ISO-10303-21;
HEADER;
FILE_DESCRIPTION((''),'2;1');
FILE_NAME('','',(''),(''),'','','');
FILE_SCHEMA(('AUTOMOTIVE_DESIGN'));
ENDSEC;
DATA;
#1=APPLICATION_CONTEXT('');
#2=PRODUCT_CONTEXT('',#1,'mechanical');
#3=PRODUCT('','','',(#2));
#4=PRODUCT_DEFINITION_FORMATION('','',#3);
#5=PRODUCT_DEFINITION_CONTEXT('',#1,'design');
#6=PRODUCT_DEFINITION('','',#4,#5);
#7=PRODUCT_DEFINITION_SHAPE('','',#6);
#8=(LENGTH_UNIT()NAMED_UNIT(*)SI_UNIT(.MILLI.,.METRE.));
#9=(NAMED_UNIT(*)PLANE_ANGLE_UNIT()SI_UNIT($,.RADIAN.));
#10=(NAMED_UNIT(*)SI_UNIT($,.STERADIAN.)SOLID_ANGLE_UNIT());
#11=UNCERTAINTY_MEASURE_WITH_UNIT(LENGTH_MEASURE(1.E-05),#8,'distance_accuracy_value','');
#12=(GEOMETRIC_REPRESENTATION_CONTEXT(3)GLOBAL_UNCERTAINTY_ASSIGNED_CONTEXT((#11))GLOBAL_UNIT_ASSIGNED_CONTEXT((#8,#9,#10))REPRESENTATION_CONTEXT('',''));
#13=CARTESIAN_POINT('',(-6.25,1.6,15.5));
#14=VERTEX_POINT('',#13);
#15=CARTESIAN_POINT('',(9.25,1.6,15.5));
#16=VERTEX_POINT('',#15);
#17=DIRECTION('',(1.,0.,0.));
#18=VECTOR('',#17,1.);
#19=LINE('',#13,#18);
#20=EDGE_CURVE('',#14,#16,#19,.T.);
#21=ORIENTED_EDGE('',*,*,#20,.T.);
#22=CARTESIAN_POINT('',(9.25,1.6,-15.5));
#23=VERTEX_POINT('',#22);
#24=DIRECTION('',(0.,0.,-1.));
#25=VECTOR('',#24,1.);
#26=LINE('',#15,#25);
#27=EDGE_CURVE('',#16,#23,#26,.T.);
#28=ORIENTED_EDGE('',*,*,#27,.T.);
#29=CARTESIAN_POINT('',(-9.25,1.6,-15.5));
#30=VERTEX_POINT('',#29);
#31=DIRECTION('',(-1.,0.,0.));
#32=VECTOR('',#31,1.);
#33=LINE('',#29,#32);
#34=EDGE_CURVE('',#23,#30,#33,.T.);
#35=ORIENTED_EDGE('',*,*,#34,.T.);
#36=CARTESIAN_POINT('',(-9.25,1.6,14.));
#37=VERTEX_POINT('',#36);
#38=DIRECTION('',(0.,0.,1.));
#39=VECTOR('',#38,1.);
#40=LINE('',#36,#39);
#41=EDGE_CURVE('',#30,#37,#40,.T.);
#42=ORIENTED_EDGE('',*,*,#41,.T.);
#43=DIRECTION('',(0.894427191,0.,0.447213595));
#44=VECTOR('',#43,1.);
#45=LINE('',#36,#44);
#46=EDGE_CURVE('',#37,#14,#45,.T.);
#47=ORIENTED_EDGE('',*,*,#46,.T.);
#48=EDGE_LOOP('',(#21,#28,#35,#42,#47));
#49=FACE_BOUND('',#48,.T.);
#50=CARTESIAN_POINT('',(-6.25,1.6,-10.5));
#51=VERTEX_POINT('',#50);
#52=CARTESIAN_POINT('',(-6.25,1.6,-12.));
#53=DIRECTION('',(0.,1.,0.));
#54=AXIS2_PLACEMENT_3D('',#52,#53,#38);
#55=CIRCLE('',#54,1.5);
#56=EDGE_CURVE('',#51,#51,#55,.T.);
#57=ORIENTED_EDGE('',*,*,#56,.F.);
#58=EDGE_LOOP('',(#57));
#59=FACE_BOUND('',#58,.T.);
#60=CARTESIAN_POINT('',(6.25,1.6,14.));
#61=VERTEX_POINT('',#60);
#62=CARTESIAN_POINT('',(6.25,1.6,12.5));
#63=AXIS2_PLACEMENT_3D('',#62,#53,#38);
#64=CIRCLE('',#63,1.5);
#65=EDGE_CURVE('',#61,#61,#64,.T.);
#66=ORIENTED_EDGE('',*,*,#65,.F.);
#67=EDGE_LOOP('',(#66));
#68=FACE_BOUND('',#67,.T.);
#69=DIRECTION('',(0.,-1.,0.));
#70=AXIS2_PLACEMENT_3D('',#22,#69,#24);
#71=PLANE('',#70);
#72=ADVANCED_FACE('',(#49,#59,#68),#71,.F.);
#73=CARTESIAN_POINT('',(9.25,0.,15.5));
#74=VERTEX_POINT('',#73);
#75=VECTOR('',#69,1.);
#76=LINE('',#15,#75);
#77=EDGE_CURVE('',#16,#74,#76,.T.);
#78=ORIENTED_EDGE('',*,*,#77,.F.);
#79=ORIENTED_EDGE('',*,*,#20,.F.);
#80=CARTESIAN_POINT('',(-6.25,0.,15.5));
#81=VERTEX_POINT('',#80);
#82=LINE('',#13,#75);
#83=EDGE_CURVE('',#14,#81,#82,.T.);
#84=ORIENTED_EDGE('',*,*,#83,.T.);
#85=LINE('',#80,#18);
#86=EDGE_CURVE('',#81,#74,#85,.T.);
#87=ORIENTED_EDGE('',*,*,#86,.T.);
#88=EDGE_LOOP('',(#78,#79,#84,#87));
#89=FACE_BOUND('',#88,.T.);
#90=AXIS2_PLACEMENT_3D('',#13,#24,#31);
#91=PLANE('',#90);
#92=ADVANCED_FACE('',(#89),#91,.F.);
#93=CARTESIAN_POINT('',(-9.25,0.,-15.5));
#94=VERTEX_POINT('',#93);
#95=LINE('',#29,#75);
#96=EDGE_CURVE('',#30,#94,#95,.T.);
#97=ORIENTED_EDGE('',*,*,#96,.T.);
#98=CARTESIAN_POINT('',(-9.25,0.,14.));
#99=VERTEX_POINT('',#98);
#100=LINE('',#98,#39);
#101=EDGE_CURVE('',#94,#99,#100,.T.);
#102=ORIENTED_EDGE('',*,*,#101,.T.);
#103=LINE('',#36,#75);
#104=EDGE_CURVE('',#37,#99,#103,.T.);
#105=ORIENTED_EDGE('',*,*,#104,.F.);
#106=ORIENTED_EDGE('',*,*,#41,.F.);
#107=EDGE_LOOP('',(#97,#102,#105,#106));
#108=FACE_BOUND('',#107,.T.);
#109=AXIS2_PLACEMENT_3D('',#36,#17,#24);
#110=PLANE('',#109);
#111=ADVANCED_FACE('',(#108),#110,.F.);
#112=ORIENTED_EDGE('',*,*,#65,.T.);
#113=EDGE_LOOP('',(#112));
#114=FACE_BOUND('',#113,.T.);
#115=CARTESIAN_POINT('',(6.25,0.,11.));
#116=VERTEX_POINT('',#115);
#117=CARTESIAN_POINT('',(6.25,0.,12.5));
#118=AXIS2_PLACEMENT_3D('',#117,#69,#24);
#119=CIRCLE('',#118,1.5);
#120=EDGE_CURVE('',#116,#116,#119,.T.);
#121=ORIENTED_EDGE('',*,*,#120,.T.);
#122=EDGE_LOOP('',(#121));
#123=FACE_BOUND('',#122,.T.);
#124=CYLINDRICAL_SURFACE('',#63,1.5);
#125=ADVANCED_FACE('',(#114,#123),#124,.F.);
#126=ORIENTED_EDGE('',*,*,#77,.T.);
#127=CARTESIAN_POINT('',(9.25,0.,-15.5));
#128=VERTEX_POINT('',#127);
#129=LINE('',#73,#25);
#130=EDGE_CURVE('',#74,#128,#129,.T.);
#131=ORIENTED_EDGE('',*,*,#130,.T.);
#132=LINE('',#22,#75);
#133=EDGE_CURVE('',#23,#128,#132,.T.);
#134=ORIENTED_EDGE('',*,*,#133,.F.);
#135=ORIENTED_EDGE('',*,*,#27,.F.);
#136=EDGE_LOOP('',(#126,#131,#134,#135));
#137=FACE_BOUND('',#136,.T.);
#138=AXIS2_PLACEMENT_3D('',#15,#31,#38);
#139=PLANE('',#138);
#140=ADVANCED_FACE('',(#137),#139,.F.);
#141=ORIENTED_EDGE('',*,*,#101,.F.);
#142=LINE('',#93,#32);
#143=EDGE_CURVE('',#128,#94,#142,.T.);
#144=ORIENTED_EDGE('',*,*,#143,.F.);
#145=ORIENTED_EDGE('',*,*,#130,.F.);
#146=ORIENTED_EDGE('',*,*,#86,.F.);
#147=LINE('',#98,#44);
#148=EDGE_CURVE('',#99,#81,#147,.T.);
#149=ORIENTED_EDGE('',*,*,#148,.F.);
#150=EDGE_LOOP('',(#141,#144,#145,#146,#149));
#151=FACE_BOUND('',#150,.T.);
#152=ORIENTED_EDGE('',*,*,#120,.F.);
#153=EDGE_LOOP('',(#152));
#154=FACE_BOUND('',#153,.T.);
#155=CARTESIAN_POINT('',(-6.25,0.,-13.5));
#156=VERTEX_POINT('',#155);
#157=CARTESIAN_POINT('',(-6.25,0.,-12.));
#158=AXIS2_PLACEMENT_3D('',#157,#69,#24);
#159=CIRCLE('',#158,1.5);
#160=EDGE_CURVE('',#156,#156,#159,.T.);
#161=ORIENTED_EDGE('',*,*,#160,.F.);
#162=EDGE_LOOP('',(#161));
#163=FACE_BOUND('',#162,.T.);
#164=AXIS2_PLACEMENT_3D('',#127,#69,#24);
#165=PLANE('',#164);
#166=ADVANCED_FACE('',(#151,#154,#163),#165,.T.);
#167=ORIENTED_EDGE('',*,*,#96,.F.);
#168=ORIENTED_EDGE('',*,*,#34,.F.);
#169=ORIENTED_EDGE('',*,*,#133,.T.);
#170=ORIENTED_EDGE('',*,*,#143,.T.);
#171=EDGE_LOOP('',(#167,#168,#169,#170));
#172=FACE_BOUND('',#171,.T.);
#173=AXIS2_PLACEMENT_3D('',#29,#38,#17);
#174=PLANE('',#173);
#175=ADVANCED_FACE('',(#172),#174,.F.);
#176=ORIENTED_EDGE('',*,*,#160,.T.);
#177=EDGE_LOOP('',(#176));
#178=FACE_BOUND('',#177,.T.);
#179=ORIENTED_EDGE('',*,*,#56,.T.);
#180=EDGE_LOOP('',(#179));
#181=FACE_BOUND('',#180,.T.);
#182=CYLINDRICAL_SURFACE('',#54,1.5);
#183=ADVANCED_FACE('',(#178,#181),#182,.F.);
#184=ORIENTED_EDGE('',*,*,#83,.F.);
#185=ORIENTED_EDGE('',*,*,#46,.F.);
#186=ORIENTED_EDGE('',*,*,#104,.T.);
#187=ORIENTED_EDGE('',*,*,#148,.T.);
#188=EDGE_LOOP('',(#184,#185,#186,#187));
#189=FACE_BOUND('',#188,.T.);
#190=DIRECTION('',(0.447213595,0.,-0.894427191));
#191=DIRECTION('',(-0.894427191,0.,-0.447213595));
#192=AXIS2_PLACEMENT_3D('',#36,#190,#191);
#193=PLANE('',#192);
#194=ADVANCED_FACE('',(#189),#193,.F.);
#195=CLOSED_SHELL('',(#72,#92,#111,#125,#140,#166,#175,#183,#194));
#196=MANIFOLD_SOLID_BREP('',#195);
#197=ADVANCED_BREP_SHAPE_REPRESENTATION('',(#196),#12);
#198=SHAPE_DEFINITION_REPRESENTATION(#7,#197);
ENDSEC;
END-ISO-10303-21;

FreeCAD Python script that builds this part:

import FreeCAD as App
import Part
import Sketcher
Q = App.Units.Quantity

doc = App.newDocument("Part")
body = doc.addObject("PartDesign::Body", "Body")

# Sketch on XZ plane
sketch1 = doc.addObject("Sketcher::SketchObject", "Sketch")
body.addObject(sketch1)
sketch1.AttachmentSupport = (doc.XZ_Plane, [""])
sketch1.MapMode = "FlatFace"
sketch1.addGeometry(Part.LineSegment(App.Vector(-6.25, 15.5, 0), App.Vector(9.25, 15.5, 0)), False)
sketch1.addGeometry(Part.LineSegment(App.Vector(9.25, 15.5, 0), App.Vector(9.25, -15.5, 0)), False)
sketch1.addGeometry(Part.LineSegment(App.Vector(9.25, -15.5, 0), App.Vector(-9.25, -15.5, 0)), False)
sketch1.addGeometry(Part.LineSegment(App.Vector(-9.25, -15.5, 0), App.Vector(-9.25, 14, 0)), False)
sketch1.addGeometry(Part.LineSegment(App.Vector(-9.25, 14, 0), App.Vector(-6.25, 15.5, 0)), False)
sketch1.addConstraint(Sketcher.Constraint("Coincident", 0, 2, 1, 1))
sketch1.addConstraint(Sketcher.Constraint("Coincident", 1, 2, 2, 1))
sketch1.addConstraint(Sketcher.Constraint("Coincident", 2, 2, 3, 1))
sketch1.addConstraint(Sketcher.Constraint("Coincident", 3, 2, 4, 1))
sketch1.addConstraint(Sketcher.Constraint("Coincident", 4, 2, 0, 1))
sketch1.addConstraint(Sketcher.Constraint("Horizontal", 0))
sketch1.addConstraint(Sketcher.Constraint("Vertical", 1))
sketch1.addConstraint(Sketcher.Constraint("Horizontal", 2))
sketch1.addConstraint(Sketcher.Constraint("Vertical", 3))
sketch1.addConstraint(Sketcher.Constraint("Symmetric", 0, 2, 2, 2, -1, 1))
sketch1.addConstraint(Sketcher.Constraint("DistanceY", 1, 2, 1, 1, Q("31 mm")))
sketch1.addConstraint(Sketcher.Constraint("DistanceX", 0, 1, 0, 2, Q("15.5 mm")))
sketch1.addConstraint(Sketcher.Constraint("DistanceX", 2, 2, 2, 1, Q("18.5 mm")))
sketch1.addConstraint(Sketcher.Constraint("DistanceY", 3, 1, 3, 2, Q("29.5 mm")))
pad1 = doc.addObject("PartDesign::Pad", "Pad")
body.addObject(pad1)
pad1.Profile = sketch1
pad1.Length = 1.6
pad1.Reversed = True

# Sketch on XZ plane
sketch2 = doc.addObject("Sketcher::SketchObject", "Sketch001")
body.addObject(sketch2)
sketch2.AttachmentSupport = (doc.XZ_Plane, [""])
sketch2.MapMode = "FlatFace"
sketch2.AttachmentOffset = App.Placement(App.Vector(0, 0, -1.6), App.Rotation())
sketch2.addGeometry(Part.Circle(App.Vector(6.25, 12.5, 0), App.Vector(0, 0, 1), 1.5), False)
sketch2.addGeometry(Part.Circle(App.Vector(-6.25, -12, 0), App.Vector(0, 0, 1), 1.5), False)
sketch2.addConstraint(Sketcher.Constraint("Equal", 0, 1))
sketch2.addConstraint(Sketcher.Constraint("Diameter", 0, Q("3 mm")))
sketch2.addConstraint(Sketcher.Constraint("DistanceY", 1, 3, -1, 1, Q("12 mm")))
sketch2.addConstraint(Sketcher.Constraint("DistanceY", -1, 1, 0, 3, Q("12.5 mm")))
sketch2.addConstraint(Sketcher.Constraint("DistanceX", 1, 3, 0, 3, Q("12.5 mm")))
sketch2.addConstraint(Sketcher.Constraint("DistanceX", -1, 1, 0, 3, Q("6.25 mm")))
doc.recompute()
hole = doc.addObject("PartDesign::Hole", "Hole")
body.addObject(hole)
hole.Profile = sketch2
hole.ThreadType = "None"
hole.Diameter = 3
hole.DepthType = "Dimension"
hole.Depth = 10
hole.DrillPoint = "Angled"
hole.DrillPointAngle = 118
hole.Reversed = True

doc.recompute()
